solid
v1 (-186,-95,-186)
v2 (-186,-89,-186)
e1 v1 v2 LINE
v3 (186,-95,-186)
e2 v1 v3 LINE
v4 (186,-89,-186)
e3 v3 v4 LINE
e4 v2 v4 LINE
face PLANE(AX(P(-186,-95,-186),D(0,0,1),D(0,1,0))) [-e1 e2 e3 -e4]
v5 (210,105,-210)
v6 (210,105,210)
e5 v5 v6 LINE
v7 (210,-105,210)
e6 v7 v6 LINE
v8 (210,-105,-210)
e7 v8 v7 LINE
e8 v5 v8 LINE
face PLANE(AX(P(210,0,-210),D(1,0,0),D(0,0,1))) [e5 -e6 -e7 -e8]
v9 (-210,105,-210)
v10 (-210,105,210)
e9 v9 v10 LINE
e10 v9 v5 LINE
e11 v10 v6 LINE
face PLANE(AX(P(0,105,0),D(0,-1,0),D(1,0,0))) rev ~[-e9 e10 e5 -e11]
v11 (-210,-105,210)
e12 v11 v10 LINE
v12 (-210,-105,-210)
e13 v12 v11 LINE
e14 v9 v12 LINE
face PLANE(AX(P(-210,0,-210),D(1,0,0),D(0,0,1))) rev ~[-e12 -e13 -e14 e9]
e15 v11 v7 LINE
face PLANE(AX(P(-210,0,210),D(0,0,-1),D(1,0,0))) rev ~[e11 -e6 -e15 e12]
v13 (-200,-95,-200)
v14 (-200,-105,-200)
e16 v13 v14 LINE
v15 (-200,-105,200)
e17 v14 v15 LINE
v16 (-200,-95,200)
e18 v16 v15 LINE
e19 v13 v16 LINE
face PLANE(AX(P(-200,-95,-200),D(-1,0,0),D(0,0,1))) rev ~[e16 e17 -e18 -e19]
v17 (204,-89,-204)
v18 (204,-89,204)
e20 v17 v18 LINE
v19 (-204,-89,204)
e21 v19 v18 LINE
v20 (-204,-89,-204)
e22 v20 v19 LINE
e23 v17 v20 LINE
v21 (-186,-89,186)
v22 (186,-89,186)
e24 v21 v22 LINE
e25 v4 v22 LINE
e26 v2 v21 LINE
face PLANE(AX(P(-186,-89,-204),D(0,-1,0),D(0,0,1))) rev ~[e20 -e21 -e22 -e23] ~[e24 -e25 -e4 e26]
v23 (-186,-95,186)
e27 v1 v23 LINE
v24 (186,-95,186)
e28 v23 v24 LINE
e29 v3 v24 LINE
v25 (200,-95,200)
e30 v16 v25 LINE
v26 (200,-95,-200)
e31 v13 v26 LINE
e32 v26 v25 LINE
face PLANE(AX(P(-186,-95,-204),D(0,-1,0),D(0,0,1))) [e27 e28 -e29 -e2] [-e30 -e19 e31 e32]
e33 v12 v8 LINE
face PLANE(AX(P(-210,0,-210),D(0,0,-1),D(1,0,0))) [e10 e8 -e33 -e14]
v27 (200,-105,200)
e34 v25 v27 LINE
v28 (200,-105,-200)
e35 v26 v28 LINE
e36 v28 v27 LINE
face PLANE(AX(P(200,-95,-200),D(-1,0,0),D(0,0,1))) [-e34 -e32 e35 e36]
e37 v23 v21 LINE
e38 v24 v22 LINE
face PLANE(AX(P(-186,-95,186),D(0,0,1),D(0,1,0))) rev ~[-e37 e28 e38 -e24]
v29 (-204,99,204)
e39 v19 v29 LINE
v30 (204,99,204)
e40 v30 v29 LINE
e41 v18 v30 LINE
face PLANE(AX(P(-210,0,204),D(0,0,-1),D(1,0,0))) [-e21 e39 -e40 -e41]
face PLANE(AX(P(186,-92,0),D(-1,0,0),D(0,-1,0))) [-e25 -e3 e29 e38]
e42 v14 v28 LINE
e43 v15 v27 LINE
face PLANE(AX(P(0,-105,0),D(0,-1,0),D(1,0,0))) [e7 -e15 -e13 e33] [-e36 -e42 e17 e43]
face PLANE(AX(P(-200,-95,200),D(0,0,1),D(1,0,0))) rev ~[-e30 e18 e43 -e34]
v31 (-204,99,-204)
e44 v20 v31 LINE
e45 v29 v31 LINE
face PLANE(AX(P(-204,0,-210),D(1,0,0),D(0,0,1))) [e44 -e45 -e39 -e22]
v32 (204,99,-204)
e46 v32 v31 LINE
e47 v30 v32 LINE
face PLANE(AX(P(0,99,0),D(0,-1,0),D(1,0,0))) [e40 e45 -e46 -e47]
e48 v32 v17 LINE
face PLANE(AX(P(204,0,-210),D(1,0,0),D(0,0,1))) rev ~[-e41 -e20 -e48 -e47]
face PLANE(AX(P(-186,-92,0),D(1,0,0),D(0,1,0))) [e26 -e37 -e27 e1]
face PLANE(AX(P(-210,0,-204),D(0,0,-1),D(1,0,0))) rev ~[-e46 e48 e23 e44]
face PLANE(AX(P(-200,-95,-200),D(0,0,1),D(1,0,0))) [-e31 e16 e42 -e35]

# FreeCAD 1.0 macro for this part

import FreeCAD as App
import Part
import Sketcher

V = App.Vector
Q = App.Units.Quantity


def faces_at(feature, points):
    """Names of the faces that lie closest to the given points."""
    faces = feature.Shape.Faces
    near = lambda p: min(range(len(faces)), key=lambda i: faces[i].distToShape(Part.Vertex(*p))[0])
    return sorted({f"Face{near(p) + 1}" for p in points})


def add_polygon(sketch, points):
    """Adds a closed chain of lines whose ends are joined by coincident constraints."""
    first, n = sketch.GeometryCount, len(points)
    for a, b in zip(points, points[1:] + points[:1]):
        sketch.addGeometry(Part.LineSegment(App.Vector(*a, 0), App.Vector(*b, 0)), False)
    for i in range(n):
        sketch.addConstraint(Sketcher.Constraint("Coincident", first + i, 2, first + (i + 1) % n, 1))

doc = App.newDocument("Part")
body = doc.addObject("PartDesign::Body", "Body")

# Sketch on XZ plane
sketch1 = body.newObject("Sketcher::SketchObject", "Sketch")
sketch1.AttachmentSupport = (doc.getObject("XZ_Plane"), [""])
sketch1.MapMode = "FlatFace"
add_polygon(sketch1, [(-210, 210), (-210, -210), (210, -210), (210, 210)])  # lines 0-3
sketch1.addConstraint(Sketcher.Constraint("Vertical", 0))
sketch1.addConstraint(Sketcher.Constraint("Horizontal", 1))
sketch1.addConstraint(Sketcher.Constraint("Vertical", 2))
sketch1.addConstraint(Sketcher.Constraint("Horizontal", 3))
sketch1.addConstraint(Sketcher.Constraint("Symmetric", 0, 2, 2, 2, -1, 1))
sketch1.addConstraint(Sketcher.Constraint("Equal", 3, 0))
sketch1.addConstraint(Sketcher.Constraint("DistanceX", 1, 1, 1, 2, Q("420 mm")))
pad1 = body.newObject("PartDesign::Pad", "Pad")
pad1.Profile = sketch1
pad1.Length = 210
pad1.Midplane = True
doc.recompute()

thickness = body.newObject("PartDesign::Thickness", "Thickness")
thickness.Base = (pad1, faces_at(pad1, [(0, -105, 0)]))
thickness.Value = 6
thickness.Reversed = True
thickness.Join = "Arc"

# Sketch on YZ plane
sketch2 = body.newObject("Sketcher::SketchObject", "Sketch001")
sketch2.AttachmentSupport = (doc.getObject("YZ_Plane"), [""])
sketch2.MapMode = "FlatFace"
sketch2.AttachmentOffset = App.Placement(V(0, 0, -204), App.Rotation())
add_polygon(sketch2, [(-95, 204), (-95, -204), (-89, -204), (-89, 204)])  # lines 0-3
sketch2.addConstraint(Sketcher.Constraint("Vertical", 0))
sketch2.addConstraint(Sketcher.Constraint("Horizontal", 1))
sketch2.addConstraint(Sketcher.Constraint("Vertical", 2))
sketch2.addConstraint(Sketcher.Constraint("Horizontal", 3))
sketch2.addConstraint(Sketcher.Constraint("DistanceX", 1, 1, 1, 2, Q("6 mm")))
sketch2.addConstraint(Sketcher.Constraint("DistanceY", 0, 2, 0, 1, Q("408 mm")))
sketch2.addConstraint(Sketcher.Constraint("DistanceX", 0, 2, -1, 1, Q("95 mm")))
sketch2.addConstraint(Sketcher.Constraint("DistanceY", 0, 2, -1, 1, Q("204 mm")))
pad2 = body.newObject("PartDesign::Pad", "Pad001")
pad2.Profile = sketch2
pad2.Length = 18

# Sketch on YZ plane
sketch3 = body.newObject("Sketcher::SketchObject", "Sketch002")
sketch3.AttachmentSupport = (doc.getObject("YZ_Plane"), [""])
sketch3.MapMode = "FlatFace"
sketch3.AttachmentOffset = App.Placement(V(0, 0, 204), App.Rotation())
add_polygon(sketch3, [(-89, 204), (-89, -204), (-95, -204), (-95, 204)])  # lines 0-3
sketch3.addConstraint(Sketcher.Constraint("Vertical", 0))
sketch3.addConstraint(Sketcher.Constraint("Horizontal", 1))
sketch3.addConstraint(Sketcher.Constraint("Vertical", 2))
sketch3.addConstraint(Sketcher.Constraint("Horizontal", 3))
sketch3.addConstraint(Sketcher.Constraint("DistanceX", 1, 2, 1, 1, Q("6 mm")))
sketch3.addConstraint(Sketcher.Constraint("DistanceY", 0, 2, 0, 1, Q("408 mm")))
sketch3.addConstraint(Sketcher.Constraint("DistanceX", 0, 2, -1, 1, Q("89 mm")))
sketch3.addConstraint(Sketcher.Constraint("DistanceY", 0, 2, -1, 1, Q("204 mm")))
pad3 = body.newObject("PartDesign::Pad", "Pad002")
pad3.Profile = sketch3
pad3.Length = 18
pad3.Reversed = True

# Sketch on YZ plane
sketch4 = body.newObject("Sketcher::SketchObject", "Sketch003")
sketch4.AttachmentSupport = (doc.getObject("YZ_Plane"), [""])
sketch4.MapMode = "FlatFace"
sketch4.AttachmentOffset = App.Placement(V(0, 0, -186), App.Rotation())
add_polygon(sketch4, [(-95, 204), (-95, 186), (-89, 186), (-89, 204)])  # lines 0-3
sketch4.addConstraint(Sketcher.Constraint("Vertical", 0))
sketch4.addConstraint(Sketcher.Constraint("Horizontal", 1))
sketch4.addConstraint(Sketcher.Constraint("Vertical", 2))
sketch4.addConstraint(Sketcher.Constraint("Horizontal", 3))
sketch4.addConstraint(Sketcher.Constraint("DistanceX", 1, 1, 1, 2, Q("6 mm")))
sketch4.addConstraint(Sketcher.Constraint("DistanceY", 0, 2, 0, 1, Q("18 mm")))
sketch4.addConstraint(Sketcher.Constraint("DistanceX", 0, 2, -1, 1, Q("95 mm")))
sketch4.addConstraint(Sketcher.Constraint("DistanceY", -1, 1, 0, 2, Q("186 mm")))
pad4 = body.newObject("PartDesign::Pad", "Pad003")
pad4.Profile = sketch4
pad4.Type = "UpToLast"

# Sketch on YZ plane
sketch5 = body.newObject("Sketcher::SketchObject", "Sketch004")
sketch5.AttachmentSupport = (doc.getObject("YZ_Plane"), [""])
sketch5.MapMode = "FlatFace"
sketch5.AttachmentOffset = App.Placement(V(0, 0, -186), App.Rotation())
add_polygon(sketch5, [(-95, -186), (-95, -204), (-89, -204), (-89, -186)])  # lines 0-3
sketch5.addConstraint(Sketcher.Constraint("Vertical", 0))
sketch5.addConstraint(Sketcher.Constraint("Horizontal", 1))
sketch5.addConstraint(Sketcher.Constraint("Vertical", 2))
sketch5.addConstraint(Sketcher.Constraint("Horizontal", 3))
sketch5.addConstraint(Sketcher.Constraint("DistanceX", 1, 1, 1, 2, Q("6 mm")))
sketch5.addConstraint(Sketcher.Constraint("DistanceY", 0, 2, 0, 1, Q("18 mm")))
sketch5.addConstraint(Sketcher.Constraint("DistanceX", 0, 2, -1, 1, Q("95 mm")))
sketch5.addConstraint(Sketcher.Constraint("DistanceY", 0, 2, -1, 1, Q("204 mm")))
pad5 = body.newObject("PartDesign::Pad", "Pad004")
pad5.Profile = sketch5
pad5.Type = "UpToLast"

# Sketch on XZ plane
sketch6 = body.newObject("Sketcher::SketchObject", "Sketch005")
sketch6.AttachmentSupport = (doc.getObject("XZ_Plane"), [""])
sketch6.MapMode = "FlatFace"
sketch6.AttachmentOffset = App.Placement(V(0, 0, 95), App.Rotation())
add_polygon(sketch6, [(-204, 204), (-204, -204), (204, -204), (204, 204)])  # lines 0-3
add_polygon(sketch6, [(200, -200), (-200, -200), (-200, 200), (200, 200)])  # lines 4-7
sketch6.addConstraint(Sketcher.Constraint("Vertical", 0))
sketch6.addConstraint(Sketcher.Constraint("Horizontal", 1))
sketch6.addConstraint(Sketcher.Constraint("Vertical", 2))
sketch6.addConstraint(Sketcher.Constraint("Horizontal", 3))
sketch6.addConstraint(Sketcher.Constraint("Horizontal", 4))
sketch6.addConstraint(Sketcher.Constraint("Vertical", 5))
sketch6.addConstraint(Sketcher.Constraint("Horizontal", 6))
sketch6.addConstraint(Sketcher.Constraint("Vertical", 7))
sketch6.addConstraint(Sketcher.Constraint("Symmetric", 0, 2, 2, 2, -1, 1))
sketch6.addConstraint(Sketcher.Constraint("Symmetric", 4, 2, 6, 2, -1, 1))
sketch6.addConstraint(Sketcher.Constraint("Equal", 3, 0))
sketch6.addConstraint(Sketcher.Constraint("Equal", 6, 5))
sketch6.addConstraint(Sketcher.Constraint("DistanceX", 1, 1, 1, 2, Q("408 mm")))
sketch6.addConstraint(Sketcher.Constraint("DistanceX", 4, 2, 4, 1, Q("400 mm")))
pad6 = body.newObject("PartDesign::Pad", "Pad005")
pad6.Profile = sketch6
pad6.Length = 10

doc.recompute()
